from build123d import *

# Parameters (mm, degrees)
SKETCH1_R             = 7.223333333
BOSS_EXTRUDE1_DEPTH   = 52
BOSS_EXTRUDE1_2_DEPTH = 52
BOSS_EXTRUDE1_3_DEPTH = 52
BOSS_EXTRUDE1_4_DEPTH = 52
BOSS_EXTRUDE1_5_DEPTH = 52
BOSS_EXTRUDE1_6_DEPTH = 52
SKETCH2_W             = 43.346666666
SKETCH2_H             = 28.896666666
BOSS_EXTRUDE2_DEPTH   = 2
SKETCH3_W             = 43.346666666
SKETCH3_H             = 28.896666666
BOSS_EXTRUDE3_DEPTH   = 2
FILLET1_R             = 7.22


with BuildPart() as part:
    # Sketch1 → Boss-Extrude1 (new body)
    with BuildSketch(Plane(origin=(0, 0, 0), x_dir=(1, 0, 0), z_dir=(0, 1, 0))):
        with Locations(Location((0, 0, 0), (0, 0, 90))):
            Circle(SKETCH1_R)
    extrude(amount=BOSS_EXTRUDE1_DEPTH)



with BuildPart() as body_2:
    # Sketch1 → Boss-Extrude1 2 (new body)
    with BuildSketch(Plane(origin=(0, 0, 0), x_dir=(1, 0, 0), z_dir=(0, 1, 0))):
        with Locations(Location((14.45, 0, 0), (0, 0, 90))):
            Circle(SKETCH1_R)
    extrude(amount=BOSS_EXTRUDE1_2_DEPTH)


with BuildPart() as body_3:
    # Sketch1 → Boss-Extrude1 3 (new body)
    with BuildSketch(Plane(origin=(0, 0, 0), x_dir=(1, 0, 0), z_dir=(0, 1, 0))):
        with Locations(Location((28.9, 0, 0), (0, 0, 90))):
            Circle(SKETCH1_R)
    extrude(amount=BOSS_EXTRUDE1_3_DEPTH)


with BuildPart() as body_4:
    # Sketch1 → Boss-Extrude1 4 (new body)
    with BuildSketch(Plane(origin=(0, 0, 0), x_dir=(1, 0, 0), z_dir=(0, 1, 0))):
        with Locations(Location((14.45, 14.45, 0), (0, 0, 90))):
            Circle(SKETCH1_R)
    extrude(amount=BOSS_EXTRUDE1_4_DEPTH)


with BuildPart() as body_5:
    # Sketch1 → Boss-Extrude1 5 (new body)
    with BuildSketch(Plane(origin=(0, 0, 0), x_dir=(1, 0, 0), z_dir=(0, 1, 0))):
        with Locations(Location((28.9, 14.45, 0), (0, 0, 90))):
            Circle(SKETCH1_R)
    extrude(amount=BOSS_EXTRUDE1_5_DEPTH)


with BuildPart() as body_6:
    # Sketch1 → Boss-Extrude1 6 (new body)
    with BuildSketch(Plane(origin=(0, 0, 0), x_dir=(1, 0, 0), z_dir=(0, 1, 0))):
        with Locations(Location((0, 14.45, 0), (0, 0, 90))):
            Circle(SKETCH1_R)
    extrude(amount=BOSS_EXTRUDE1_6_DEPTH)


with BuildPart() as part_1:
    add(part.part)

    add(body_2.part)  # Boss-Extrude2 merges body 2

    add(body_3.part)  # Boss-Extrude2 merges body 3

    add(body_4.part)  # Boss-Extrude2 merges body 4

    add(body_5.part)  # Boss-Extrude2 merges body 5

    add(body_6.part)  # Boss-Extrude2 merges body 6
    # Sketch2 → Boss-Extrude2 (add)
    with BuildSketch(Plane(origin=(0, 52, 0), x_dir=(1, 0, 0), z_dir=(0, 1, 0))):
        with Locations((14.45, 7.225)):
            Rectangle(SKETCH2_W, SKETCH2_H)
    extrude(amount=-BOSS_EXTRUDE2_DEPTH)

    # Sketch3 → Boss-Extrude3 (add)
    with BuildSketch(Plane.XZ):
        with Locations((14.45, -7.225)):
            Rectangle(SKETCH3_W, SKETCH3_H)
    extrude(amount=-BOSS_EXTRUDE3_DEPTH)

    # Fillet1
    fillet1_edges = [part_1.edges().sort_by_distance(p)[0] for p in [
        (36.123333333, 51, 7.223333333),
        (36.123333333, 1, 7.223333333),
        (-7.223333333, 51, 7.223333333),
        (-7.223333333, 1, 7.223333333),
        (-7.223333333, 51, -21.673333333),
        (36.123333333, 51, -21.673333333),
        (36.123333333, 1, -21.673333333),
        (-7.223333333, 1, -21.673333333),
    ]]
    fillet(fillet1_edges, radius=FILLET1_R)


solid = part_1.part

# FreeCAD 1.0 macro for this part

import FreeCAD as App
import Part
import Sketcher


def edges_at(feature, points):
    """Names of the edges that pass closest to the given points."""
    edges = feature.Shape.Edges
    near = lambda p: min(range(len(edges)), key=lambda i: edges[i].distToShape(Part.Vertex(*p))[0])
    return sorted({f"Edge{near(p) + 1}" for p in points})


def add_polygon(sketch, points):
    """Adds a closed chain of lines whose ends are joined by coincident constraints."""
    first, n = sketch.GeometryCount, len(points)
    for a, b in zip(points, points[1:] + points[:1]):
        sketch.addGeometry(Part.LineSegment(App.Vector(*a, 0), App.Vector(*b, 0)), False)
    for i in range(n):
        sketch.addConstraint(Sketcher.Constraint("Coincident", first + i, 2, first + (i + 1) % n, 1))

doc = App.newDocument("Part")
params = doc.addObject("Spreadsheet::Sheet", "Params")
for row, (alias, value) in enumerate([
    ("pad1_length", "52 mm"),
    ("pad2_length", "52 mm"),
    ("pad3_length", "52 mm"),
    ("pad4_length", "52 mm"),
    ("pad5_length", "52 mm"),
    ("pad6_length", "52 mm"),
    ("pad7_length", "2 mm"),
    ("pad8_length", "2 mm"),
    ("fillet_radius", "7.22 mm"),
], start=1):
    params.set(f"A{row}", alias)
    params.set(f"B{row}", "=" + value)
    params.setAlias(f"B{row}", alias)

body = doc.addObject("PartDesign::Body", "Body")

# Sketch on XZ plane
sketch1 = body.newObject("Sketcher::SketchObject", "Sketch")
sketch1.AttachmentSupport = (doc.getObject("XZ_Plane"), [""])
sketch1.MapMode = "FlatFace"
sketch1.addGeometry(Part.Circle(App.Vector(0, 0, 0), App.Vector(0, 0, 1), 7), False)
sketch1.addConstraint([
    Sketcher.Constraint("Coincident", 0, 3, -1, 1),
    Sketcher.Constraint("Diameter", 0, 14.446667),
])
pad1 = body.newObject("PartDesign::Pad", "Pad")
pad1.Profile = sketch1
pad1.setExpression("Length", "Params.pad1_length")
pad1.Reversed = True
body2 = doc.addObject("PartDesign::Body", "Body001")

# Sketch on XZ plane
sketch2 = body2.newObject("Sketcher::SketchObject", "Sketch001")
sketch2.AttachmentSupport = (doc.getObject("XZ_Plane001"), [""])
sketch2.MapMode = "FlatFace"
sketch2.addGeometry(Part.Circle(App.Vector(14, 0, 0), App.Vector(0, 0, 1), 7), False)
sketch2.addConstraint([
    Sketcher.Constraint("PointOnObject", 0, 3, -1),
    Sketcher.Constraint("DistanceX", -1, 1, 0, 3, 14.45),
    Sketcher.Constraint("Diameter", 0, 14.446667),
])
pad2 = body2.newObject("PartDesign::Pad", "Pad001")
pad2.Profile = sketch2
pad2.setExpression("Length", "Params.pad2_length")
pad2.Reversed = True
body3 = doc.addObject("PartDesign::Body", "Body002")

# Sketch on XZ plane
sketch3 = body3.newObject("Sketcher::SketchObject", "Sketch002")
sketch3.AttachmentSupport = (doc.getObject("XZ_Plane002"), [""])
sketch3.MapMode = "FlatFace"
sketch3.addGeometry(Part.Circle(App.Vector(29, 0, 0), App.Vector(0, 0, 1), 7), False)
sketch3.addConstraint([
    Sketcher.Constraint("PointOnObject", 0, 3, -1),
    Sketcher.Constraint("DistanceX", -1, 1, 0, 3, 28.9),
    Sketcher.Constraint("Diameter", 0, 14.446667),
])
pad3 = body3.newObject("PartDesign::Pad", "Pad002")
pad3.Profile = sketch3
pad3.setExpression("Length", "Params.pad3_length")
pad3.Reversed = True
body4 = doc.addObject("PartDesign::Body", "Body003")

# Sketch on XZ plane
sketch4 = body4.newObject("Sketcher::SketchObject", "Sketch003")
sketch4.AttachmentSupport = (doc.getObject("XZ_Plane003"), [""])
sketch4.MapMode = "FlatFace"
sketch4.addGeometry(Part.Circle(App.Vector(14, -14, 0), App.Vector(0, 0, 1), 7), False)
sketch4.addConstraint([
    Sketcher.Constraint("DistanceX", -1, 1, 0, 3, 14.45),
    Sketcher.Constraint("DistanceY", 0, 3, -1, 1, 14.45),
    Sketcher.Constraint("Diameter", 0, 14.446667),
])
pad4 = body4.newObject("PartDesign::Pad", "Pad003")
pad4.Profile = sketch4
pad4.setExpression("Length", "Params.pad4_length")
pad4.Reversed = True
body5 = doc.addObject("PartDesign::Body", "Body004")

# Sketch on XZ plane
sketch5 = body5.newObject("Sketcher::SketchObject", "Sketch004")
sketch5.AttachmentSupport = (doc.getObject("XZ_Plane004"), [""])
sketch5.MapMode = "FlatFace"
sketch5.addGeometry(Part.Circle(App.Vector(29, -14, 0), App.Vector(0, 0, 1), 7), False)
sketch5.addConstraint([
    Sketcher.Constraint("DistanceX", -1, 1, 0, 3, 28.9),
    Sketcher.Constraint("DistanceY", 0, 3, -1, 1, 14.45),
    Sketcher.Constraint("Diameter", 0, 14.446667),
])
pad5 = body5.newObject("PartDesign::Pad", "Pad004")
pad5.Profile = sketch5
pad5.setExpression("Length", "Params.pad5_length")
pad5.Reversed = True
body6 = doc.addObject("PartDesign::Body", "Body005")

# Sketch on XZ plane
sketch6 = body6.newObject("Sketcher::SketchObject", "Sketch005")
sketch6.AttachmentSupport = (doc.getObject("XZ_Plane005"), [""])
sketch6.MapMode = "FlatFace"
sketch6.addGeometry(Part.Circle(App.Vector(0, -14, 0), App.Vector(0, 0, 1), 7), False)
sketch6.addConstraint([
    Sketcher.Constraint("PointOnObject", 0, 3, -2),
    Sketcher.Constraint("DistanceY", 0, 3, -1, 1, 14.45),
    Sketcher.Constraint("Diameter", 0, 14.446667),
])
pad6 = body6.newObject("PartDesign::Pad", "Pad005")
pad6.Profile = sketch6
pad6.setExpression("Length", "Params.pad6_length")
pad6.Reversed = True
body.AllowCompound = True
doc.recompute()

boolean = body.newObject("PartDesign::Boolean", "Boolean")
boolean.Type = "Fuse"
boolean.addObjects([body2])
doc.recompute()

boolean2 = body.newObject("PartDesign::Boolean", "Boolean001")
boolean2.Type = "Fuse"
boolean2.addObjects([body3])
doc.recompute()

boolean3 = body.newObject("PartDesign::Boolean", "Boolean002")
boolean3.Type = "Fuse"
boolean3.addObjects([body4])
doc.recompute()

boolean4 = body.newObject("PartDesign::Boolean", "Boolean003")
boolean4.Type = "Fuse"
boolean4.addObjects([body5])
doc.recompute()

boolean5 = body.newObject("PartDesign::Boolean", "Boolean004")
boolean5.Type = "Fuse"
boolean5.addObjects([body6])

# Sketch on XZ plane
sketch7 = body.newObject("Sketcher::SketchObject", "Sketch006")
sketch7.AttachmentSupport = (doc.getObject("XZ_Plane"), [""])
sketch7.MapMode = "FlatFace"
sketch7.AttachmentOffset = App.Placement(App.Vector(0, 0, -52), App.Rotation())
add_polygon(sketch7, [(-7, -22), (-7, 7), (36, 7), (36, -22)])  # lines 0-3
sketch7.addConstraint([
    Sketcher.Constraint("Vertical", 0),
    Sketcher.Constraint("Horizontal", 1),
    Sketcher.Constraint("Vertical", 2),
    Sketcher.Constraint("Horizontal", 3),
    Sketcher.Constraint("DistanceX", 1, 1, 1, 2, 43.346667),
    Sketcher.Constraint("DistanceY", 0, 1, 0, 2, 28.896667),
    Sketcher.Constraint("DistanceX", 0, 2, -1, 1, 7.223333),
    Sketcher.Constraint("DistanceY", -1, 1, 0, 2, 7.223333),
])
pad7 = body.newObject("PartDesign::Pad", "Pad006")
pad7.Profile = sketch7
pad7.setExpression("Length", "Params.pad7_length")

# Sketch on XZ plane
sketch8 = body.newObject("Sketcher::SketchObject", "Sketch007")
sketch8.AttachmentSupport = (doc.getObject("XZ_Plane"), [""])
sketch8.MapMode = "FlatFace"
add_polygon(sketch8, [(-7, 7), (-7, -22), (36, -22), (36, 7)])  # lines 0-3
sketch8.addConstraint([
    Sketcher.Constraint("Vertical", 0),
    Sketcher.Constraint("Horizontal", 1),
    Sketcher.Constraint("Vertical", 2),
    Sketcher.Constraint("Horizontal", 3),
    Sketcher.Constraint("DistanceX", 1, 1, 1, 2, 43.346667),
    Sketcher.Constraint("DistanceY", 0, 2, 0, 1, 28.896667),
    Sketcher.Constraint("DistanceX", 0, 2, -1, 1, 7.223333),
    Sketcher.Constraint("DistanceY", 0, 2, -1, 1, 21.673333),
])
pad8 = body.newObject("PartDesign::Pad", "Pad007")
pad8.Profile = sketch8
pad8.setExpression("Length", "Params.pad8_length")
pad8.Reversed = True
doc.recompute()

fillet = body.newObject("PartDesign::Fillet", "Fillet")
fillet.Base = (pad8, edges_at(pad8, [
    (36.123, 51, 7.223),
    (36.123, 1, 7.223),
    (-7.223, 51, 7.223),
    (-7.223, 1, 7.223),
    (-7.223, 51, -21.673),
    (36.123, 51, -21.673),
    (36.123, 1, -21.673),
    (-7.223, 1, -21.673),
]))
fillet.setExpression("Radius", "Params.fillet_radius")

doc.recompute()
